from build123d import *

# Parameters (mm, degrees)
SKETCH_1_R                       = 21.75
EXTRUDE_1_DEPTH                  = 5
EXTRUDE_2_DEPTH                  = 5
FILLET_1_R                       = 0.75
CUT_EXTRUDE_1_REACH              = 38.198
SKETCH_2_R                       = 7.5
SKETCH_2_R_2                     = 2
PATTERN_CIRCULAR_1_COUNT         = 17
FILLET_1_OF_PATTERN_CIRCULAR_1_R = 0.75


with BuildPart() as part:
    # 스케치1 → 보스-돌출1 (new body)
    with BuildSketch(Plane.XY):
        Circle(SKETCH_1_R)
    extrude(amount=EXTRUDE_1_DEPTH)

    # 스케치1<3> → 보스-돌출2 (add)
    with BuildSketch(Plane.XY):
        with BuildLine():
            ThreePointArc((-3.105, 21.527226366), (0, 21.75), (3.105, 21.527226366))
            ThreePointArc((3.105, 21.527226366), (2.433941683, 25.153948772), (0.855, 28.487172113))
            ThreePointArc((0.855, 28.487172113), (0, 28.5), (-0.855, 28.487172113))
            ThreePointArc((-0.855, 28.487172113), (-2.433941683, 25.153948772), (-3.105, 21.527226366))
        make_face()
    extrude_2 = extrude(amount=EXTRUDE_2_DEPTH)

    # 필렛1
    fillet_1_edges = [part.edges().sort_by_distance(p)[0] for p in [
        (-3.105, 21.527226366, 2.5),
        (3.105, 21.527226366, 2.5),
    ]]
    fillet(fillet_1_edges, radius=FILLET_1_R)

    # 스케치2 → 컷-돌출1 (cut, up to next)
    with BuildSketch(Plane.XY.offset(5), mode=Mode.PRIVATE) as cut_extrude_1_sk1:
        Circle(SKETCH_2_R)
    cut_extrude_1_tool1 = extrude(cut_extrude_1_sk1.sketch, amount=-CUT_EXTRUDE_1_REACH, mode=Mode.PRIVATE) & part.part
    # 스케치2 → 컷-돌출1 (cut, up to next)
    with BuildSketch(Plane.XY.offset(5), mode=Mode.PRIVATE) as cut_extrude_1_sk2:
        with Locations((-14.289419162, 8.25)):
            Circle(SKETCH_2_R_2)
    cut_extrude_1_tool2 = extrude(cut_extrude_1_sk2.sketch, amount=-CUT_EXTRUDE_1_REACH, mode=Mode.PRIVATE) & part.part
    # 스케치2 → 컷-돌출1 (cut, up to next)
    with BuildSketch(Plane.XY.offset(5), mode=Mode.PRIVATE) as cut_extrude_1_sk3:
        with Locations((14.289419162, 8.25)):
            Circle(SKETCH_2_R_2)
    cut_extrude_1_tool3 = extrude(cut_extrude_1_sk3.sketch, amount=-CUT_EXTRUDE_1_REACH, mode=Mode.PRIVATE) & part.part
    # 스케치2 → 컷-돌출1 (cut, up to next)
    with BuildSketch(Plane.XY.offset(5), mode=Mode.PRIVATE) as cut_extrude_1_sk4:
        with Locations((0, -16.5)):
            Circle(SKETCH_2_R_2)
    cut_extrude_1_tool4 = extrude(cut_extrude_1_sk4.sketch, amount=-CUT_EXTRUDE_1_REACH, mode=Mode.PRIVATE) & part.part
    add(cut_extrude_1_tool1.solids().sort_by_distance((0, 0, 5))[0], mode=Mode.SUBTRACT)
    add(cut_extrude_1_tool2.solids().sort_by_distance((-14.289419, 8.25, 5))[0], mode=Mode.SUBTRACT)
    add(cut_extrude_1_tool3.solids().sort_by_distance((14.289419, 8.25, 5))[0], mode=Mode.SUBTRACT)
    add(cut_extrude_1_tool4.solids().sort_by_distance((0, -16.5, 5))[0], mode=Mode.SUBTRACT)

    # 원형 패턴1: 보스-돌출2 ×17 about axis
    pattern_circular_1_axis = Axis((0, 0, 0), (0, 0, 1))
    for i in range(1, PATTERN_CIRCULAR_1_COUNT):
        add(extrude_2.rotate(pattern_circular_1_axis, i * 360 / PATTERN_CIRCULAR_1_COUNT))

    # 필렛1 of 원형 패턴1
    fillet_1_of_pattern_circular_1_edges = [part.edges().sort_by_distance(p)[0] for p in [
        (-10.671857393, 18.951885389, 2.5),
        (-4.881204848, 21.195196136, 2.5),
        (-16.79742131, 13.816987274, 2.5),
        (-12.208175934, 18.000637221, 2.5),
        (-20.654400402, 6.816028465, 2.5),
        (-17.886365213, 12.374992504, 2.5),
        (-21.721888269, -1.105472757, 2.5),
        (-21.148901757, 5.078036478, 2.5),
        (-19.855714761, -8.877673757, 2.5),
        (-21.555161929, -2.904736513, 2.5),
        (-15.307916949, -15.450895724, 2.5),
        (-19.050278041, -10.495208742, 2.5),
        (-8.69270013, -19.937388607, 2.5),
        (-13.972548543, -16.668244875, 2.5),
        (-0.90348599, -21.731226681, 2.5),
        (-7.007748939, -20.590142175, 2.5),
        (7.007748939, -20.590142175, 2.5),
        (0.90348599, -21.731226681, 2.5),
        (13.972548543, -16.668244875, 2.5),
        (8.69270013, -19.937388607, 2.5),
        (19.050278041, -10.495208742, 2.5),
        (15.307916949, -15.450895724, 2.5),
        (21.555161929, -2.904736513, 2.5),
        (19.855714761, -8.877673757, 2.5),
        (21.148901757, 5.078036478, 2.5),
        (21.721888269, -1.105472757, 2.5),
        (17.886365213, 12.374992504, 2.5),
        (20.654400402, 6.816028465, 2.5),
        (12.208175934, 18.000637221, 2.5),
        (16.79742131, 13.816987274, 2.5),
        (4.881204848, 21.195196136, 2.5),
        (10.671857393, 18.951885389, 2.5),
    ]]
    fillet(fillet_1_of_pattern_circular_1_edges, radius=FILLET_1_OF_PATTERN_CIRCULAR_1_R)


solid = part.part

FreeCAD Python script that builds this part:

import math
import FreeCAD as App
import Part
import Sketcher
from FreeCAD import Vector


def edges_at(feature, points):
    """Names of the edges that pass closest to the given points."""
    edges = feature.Shape.Edges
    near = lambda p: min(range(len(edges)), key=lambda i: edges[i].distToShape(Part.Vertex(*p))[0])
    return sorted({f"Edge{near(p) + 1}" for p in points})

doc = App.newDocument("Part")
body = doc.addObject("PartDesign::Body", "Body")

# Sketch on XY plane
sketch1 = body.newObject("Sketcher::SketchObject", "Sketch")
sketch1.AttachmentSupport = (doc.getObject("XY_Plane"), [""])
sketch1.MapMode = "FlatFace"
sketch1.addGeometry(Part.Circle(Vector(0, 0, 0), Vector(0, 0, 1), 22), False)
sketch1.addConstraint(Sketcher.Constraint("Coincident", 0, 3, -1, 1))
sketch1.addConstraint(Sketcher.Constraint("Diameter", 0, 43.5))
pad1 = body.newObject("PartDesign::Pad", "Pad")
pad1.Profile = sketch1
pad1.Length = 5

# Sketch on XY plane
sketch2 = body.newObject("Sketcher::SketchObject", "Sketch001")
sketch2.AttachmentSupport = (doc.getObject("XY_Plane"), [""])
sketch2.MapMode = "FlatFace"
sketch2.addGeometry(Part.ArcOfCircle(Part.Circle(Vector(0, 0, 0), Vector(0, 0, 1), 21.8), math.radians(81.79), math.radians(98.21)), False)
sketch2.addGeometry(Part.ArcOfCircle(Part.Circle(Vector(-11.1, 20.8, 0), Vector(0, 0, 1), 14.3), math.radians(3), math.radians(33)), False)
sketch2.addGeometry(Part.ArcOfCircle(Part.Circle(Vector(0, 0, 0), Vector(0, 0, 1), 28.5), math.radians(88.28), math.radians(91.72)), False)
sketch2.addGeometry(Part.ArcOfCircle(Part.Circle(Vector(11.1, 20.8, 0), Vector(0, 0, 1), 14.3), math.radians(147), math.radians(177)), False)
sketch2.addConstraint(Sketcher.Constraint("Coincident", 0, 1, 1, 1))
sketch2.addConstraint(Sketcher.Constraint("Coincident", 1, 2, 2, 1))
sketch2.addConstraint(Sketcher.Constraint("Coincident", 2, 2, 3, 1))
sketch2.addConstraint(Sketcher.Constraint("Coincident", 3, 2, 0, 2))
sketch2.addConstraint(Sketcher.Constraint("Coincident", 0, 3, -1, 1))
sketch2.addConstraint(Sketcher.Constraint("Coincident", 2, 3, -1, 1))
sketch2.addConstraint(Sketcher.Constraint("Equal", 1, 3))
sketch2.addConstraint(Sketcher.Constraint("Symmetric", 1, 3, 3, 3, -2))
sketch2.addConstraint(Sketcher.Constraint("Radius", 2, 28.5))
sketch2.addConstraint(Sketcher.Constraint("Radius", 0, 21.75))
sketch2.addConstraint(Sketcher.Constraint("Radius", 1, 14.257189))
sketch2.addConstraint(Sketcher.Constraint("DistanceX", 1, 2, 0, 1, 2.25))
sketch2.addConstraint(Sketcher.Constraint("DistanceX", 2, 2, 1, 2, 1.71))
pad2 = body.newObject("PartDesign::Pad", "Pad001")
pad2.Profile = sketch2
pad2.Length = 5
doc.recompute()

fillet = body.newObject("PartDesign::Fillet", "Fillet")
fillet.Base = (pad2, edges_at(pad2, [(-3.105, 21.527, 2.5), (3.105, 21.527, 2.5)]))
fillet.Radius = 0.75

# Sketch on XY plane
sketch3 = body.newObject("Sketcher::SketchObject", "Sketch002")
sketch3.AttachmentSupport = (doc.getObject("XY_Plane"), [""])
sketch3.MapMode = "FlatFace"
sketch3.AttachmentOffset = App.Placement(Vector(0, 0, 5), App.Rotation())
sketch3.addGeometry(Part.Circle(Vector(0, 0, 0), Vector(0, 0, 1), 8), False)
sketch3.addConstraint(Sketcher.Constraint("Coincident", 0, 3, -1, 1))
sketch3.addConstraint(Sketcher.Constraint("Diameter", 0, 15.0))
pocket1 = body.newObject("PartDesign::Pocket", "Pocket")
pocket1.Profile = sketch3
pocket1.Type = "UpToFirst"

# Sketch on XY plane
sketch4 = body.newObject("Sketcher::SketchObject", "Sketch003")
sketch4.AttachmentSupport = (doc.getObject("XY_Plane"), [""])
sketch4.MapMode = "FlatFace"
sketch4.AttachmentOffset = App.Placement(Vector(0, 0, 5), App.Rotation())
sketch4.addGeometry(Part.Circle(Vector(-14.3, 8.2, 0), Vector(0, 0, 1), 2), False)
sketch4.addConstraint(Sketcher.Constraint("Diameter", 0, 4.0))
sketch4.addConstraint(Sketcher.Constraint("DistanceY", -1, 1, 0, 3, 8.25))
sketch4.addConstraint(Sketcher.Constraint("DistanceX", 0, 3, -1, 1, 14.289419))
pocket2 = body.newObject("PartDesign::Pocket", "Pocket001")
pocket2.Profile = sketch4
pocket2.Type = "UpToFirst"

# Sketch on XY plane
sketch5 = body.newObject("Sketcher::SketchObject", "Sketch004")
sketch5.AttachmentSupport = (doc.getObject("XY_Plane"), [""])
sketch5.MapMode = "FlatFace"
sketch5.AttachmentOffset = App.Placement(Vector(0, 0, 5), App.Rotation())
sketch5.addGeometry(Part.Circle(Vector(14.3, 8.2, 0), Vector(0, 0, 1), 2), False)
sketch5.addConstraint(Sketcher.Constraint("Diameter", 0, 4.0))
sketch5.addConstraint(Sketcher.Constraint("DistanceY", -1, 1, 0, 3, 8.25))
sketch5.addConstraint(Sketcher.Constraint("DistanceX", -1, 1, 0, 3, 14.289419))
pocket3 = body.newObject("PartDesign::Pocket", "Pocket002")
pocket3.Profile = sketch5
pocket3.Type = "UpToFirst"

# Sketch on XY plane
sketch6 = body.newObject("Sketcher::SketchObject", "Sketch005")
sketch6.AttachmentSupport = (doc.getObject("XY_Plane"), [""])
sketch6.MapMode = "FlatFace"
sketch6.AttachmentOffset = App.Placement(Vector(0, 0, 5), App.Rotation())
sketch6.addGeometry(Part.Circle(Vector(0, -16.5, 0), Vector(0, 0, 1), 2), False)
sketch6.addConstraint(Sketcher.Constraint("PointOnObject", 0, 3, -2))
sketch6.addConstraint(Sketcher.Constraint("Diameter", 0, 4.0))
sketch6.addConstraint(Sketcher.Constraint("DistanceY", 0, 3, -1, 1, 16.5))
pocket4 = body.newObject("PartDesign::Pocket", "Pocket003")
pocket4.Profile = sketch6
pocket4.Type = "UpToFirst"
doc.recompute()

polarpattern = body.newObject("PartDesign::PolarPattern", "PolarPattern")
polarpattern.Originals = [pad2]
polarpattern.Axis = (doc.getObject("Z_Axis"), [""])
polarpattern.Angle = 360
polarpattern.Occurrences = 17
body.Tip = polarpattern
doc.recompute()

fillet2 = body.newObject("PartDesign::Fillet", "Fillet001")
fillet2.Base = (polarpattern, edges_at(polarpattern, [
    (-10.672, 18.952, 2.5),
    (-4.881, 21.195, 2.5),
    (-16.797, 13.817, 2.5),
    (-12.208, 18.001, 2.5),
    (-20.654, 6.816, 2.5),
    (-17.886, 12.375, 2.5),
    (-21.722, -1.105, 2.5),
    (-21.149, 5.078, 2.5),
    (-19.856, -8.878, 2.5),
    (-21.555, -2.905, 2.5),
    (-15.308, -15.451, 2.5),
    (-19.05, -10.495, 2.5),
    (-8.693, -19.937, 2.5),
    (-13.973, -16.668, 2.5),
    (-0.903, -21.731, 2.5),
    (-7.008, -20.59, 2.5),
    (7.008, -20.59, 2.5),
    (0.903, -21.731, 2.5),
    (13.973, -16.668, 2.5),
    (8.693, -19.937, 2.5),
    (19.05, -10.495, 2.5),
    (15.308, -15.451, 2.5),
    (21.555, -2.905, 2.5),
    (19.856, -8.878, 2.5),
    (21.149, 5.078, 2.5),
    (21.722, -1.105, 2.5),
    (17.886, 12.375, 2.5),
    (20.654, 6.816, 2.5),
    (12.208, 18.001, 2.5),
    (16.797, 13.817, 2.5),
    (4.881, 21.195, 2.5),
    (10.672, 18.952, 2.5),
]))
fillet2.Radius = 0.75

doc.recompute()
